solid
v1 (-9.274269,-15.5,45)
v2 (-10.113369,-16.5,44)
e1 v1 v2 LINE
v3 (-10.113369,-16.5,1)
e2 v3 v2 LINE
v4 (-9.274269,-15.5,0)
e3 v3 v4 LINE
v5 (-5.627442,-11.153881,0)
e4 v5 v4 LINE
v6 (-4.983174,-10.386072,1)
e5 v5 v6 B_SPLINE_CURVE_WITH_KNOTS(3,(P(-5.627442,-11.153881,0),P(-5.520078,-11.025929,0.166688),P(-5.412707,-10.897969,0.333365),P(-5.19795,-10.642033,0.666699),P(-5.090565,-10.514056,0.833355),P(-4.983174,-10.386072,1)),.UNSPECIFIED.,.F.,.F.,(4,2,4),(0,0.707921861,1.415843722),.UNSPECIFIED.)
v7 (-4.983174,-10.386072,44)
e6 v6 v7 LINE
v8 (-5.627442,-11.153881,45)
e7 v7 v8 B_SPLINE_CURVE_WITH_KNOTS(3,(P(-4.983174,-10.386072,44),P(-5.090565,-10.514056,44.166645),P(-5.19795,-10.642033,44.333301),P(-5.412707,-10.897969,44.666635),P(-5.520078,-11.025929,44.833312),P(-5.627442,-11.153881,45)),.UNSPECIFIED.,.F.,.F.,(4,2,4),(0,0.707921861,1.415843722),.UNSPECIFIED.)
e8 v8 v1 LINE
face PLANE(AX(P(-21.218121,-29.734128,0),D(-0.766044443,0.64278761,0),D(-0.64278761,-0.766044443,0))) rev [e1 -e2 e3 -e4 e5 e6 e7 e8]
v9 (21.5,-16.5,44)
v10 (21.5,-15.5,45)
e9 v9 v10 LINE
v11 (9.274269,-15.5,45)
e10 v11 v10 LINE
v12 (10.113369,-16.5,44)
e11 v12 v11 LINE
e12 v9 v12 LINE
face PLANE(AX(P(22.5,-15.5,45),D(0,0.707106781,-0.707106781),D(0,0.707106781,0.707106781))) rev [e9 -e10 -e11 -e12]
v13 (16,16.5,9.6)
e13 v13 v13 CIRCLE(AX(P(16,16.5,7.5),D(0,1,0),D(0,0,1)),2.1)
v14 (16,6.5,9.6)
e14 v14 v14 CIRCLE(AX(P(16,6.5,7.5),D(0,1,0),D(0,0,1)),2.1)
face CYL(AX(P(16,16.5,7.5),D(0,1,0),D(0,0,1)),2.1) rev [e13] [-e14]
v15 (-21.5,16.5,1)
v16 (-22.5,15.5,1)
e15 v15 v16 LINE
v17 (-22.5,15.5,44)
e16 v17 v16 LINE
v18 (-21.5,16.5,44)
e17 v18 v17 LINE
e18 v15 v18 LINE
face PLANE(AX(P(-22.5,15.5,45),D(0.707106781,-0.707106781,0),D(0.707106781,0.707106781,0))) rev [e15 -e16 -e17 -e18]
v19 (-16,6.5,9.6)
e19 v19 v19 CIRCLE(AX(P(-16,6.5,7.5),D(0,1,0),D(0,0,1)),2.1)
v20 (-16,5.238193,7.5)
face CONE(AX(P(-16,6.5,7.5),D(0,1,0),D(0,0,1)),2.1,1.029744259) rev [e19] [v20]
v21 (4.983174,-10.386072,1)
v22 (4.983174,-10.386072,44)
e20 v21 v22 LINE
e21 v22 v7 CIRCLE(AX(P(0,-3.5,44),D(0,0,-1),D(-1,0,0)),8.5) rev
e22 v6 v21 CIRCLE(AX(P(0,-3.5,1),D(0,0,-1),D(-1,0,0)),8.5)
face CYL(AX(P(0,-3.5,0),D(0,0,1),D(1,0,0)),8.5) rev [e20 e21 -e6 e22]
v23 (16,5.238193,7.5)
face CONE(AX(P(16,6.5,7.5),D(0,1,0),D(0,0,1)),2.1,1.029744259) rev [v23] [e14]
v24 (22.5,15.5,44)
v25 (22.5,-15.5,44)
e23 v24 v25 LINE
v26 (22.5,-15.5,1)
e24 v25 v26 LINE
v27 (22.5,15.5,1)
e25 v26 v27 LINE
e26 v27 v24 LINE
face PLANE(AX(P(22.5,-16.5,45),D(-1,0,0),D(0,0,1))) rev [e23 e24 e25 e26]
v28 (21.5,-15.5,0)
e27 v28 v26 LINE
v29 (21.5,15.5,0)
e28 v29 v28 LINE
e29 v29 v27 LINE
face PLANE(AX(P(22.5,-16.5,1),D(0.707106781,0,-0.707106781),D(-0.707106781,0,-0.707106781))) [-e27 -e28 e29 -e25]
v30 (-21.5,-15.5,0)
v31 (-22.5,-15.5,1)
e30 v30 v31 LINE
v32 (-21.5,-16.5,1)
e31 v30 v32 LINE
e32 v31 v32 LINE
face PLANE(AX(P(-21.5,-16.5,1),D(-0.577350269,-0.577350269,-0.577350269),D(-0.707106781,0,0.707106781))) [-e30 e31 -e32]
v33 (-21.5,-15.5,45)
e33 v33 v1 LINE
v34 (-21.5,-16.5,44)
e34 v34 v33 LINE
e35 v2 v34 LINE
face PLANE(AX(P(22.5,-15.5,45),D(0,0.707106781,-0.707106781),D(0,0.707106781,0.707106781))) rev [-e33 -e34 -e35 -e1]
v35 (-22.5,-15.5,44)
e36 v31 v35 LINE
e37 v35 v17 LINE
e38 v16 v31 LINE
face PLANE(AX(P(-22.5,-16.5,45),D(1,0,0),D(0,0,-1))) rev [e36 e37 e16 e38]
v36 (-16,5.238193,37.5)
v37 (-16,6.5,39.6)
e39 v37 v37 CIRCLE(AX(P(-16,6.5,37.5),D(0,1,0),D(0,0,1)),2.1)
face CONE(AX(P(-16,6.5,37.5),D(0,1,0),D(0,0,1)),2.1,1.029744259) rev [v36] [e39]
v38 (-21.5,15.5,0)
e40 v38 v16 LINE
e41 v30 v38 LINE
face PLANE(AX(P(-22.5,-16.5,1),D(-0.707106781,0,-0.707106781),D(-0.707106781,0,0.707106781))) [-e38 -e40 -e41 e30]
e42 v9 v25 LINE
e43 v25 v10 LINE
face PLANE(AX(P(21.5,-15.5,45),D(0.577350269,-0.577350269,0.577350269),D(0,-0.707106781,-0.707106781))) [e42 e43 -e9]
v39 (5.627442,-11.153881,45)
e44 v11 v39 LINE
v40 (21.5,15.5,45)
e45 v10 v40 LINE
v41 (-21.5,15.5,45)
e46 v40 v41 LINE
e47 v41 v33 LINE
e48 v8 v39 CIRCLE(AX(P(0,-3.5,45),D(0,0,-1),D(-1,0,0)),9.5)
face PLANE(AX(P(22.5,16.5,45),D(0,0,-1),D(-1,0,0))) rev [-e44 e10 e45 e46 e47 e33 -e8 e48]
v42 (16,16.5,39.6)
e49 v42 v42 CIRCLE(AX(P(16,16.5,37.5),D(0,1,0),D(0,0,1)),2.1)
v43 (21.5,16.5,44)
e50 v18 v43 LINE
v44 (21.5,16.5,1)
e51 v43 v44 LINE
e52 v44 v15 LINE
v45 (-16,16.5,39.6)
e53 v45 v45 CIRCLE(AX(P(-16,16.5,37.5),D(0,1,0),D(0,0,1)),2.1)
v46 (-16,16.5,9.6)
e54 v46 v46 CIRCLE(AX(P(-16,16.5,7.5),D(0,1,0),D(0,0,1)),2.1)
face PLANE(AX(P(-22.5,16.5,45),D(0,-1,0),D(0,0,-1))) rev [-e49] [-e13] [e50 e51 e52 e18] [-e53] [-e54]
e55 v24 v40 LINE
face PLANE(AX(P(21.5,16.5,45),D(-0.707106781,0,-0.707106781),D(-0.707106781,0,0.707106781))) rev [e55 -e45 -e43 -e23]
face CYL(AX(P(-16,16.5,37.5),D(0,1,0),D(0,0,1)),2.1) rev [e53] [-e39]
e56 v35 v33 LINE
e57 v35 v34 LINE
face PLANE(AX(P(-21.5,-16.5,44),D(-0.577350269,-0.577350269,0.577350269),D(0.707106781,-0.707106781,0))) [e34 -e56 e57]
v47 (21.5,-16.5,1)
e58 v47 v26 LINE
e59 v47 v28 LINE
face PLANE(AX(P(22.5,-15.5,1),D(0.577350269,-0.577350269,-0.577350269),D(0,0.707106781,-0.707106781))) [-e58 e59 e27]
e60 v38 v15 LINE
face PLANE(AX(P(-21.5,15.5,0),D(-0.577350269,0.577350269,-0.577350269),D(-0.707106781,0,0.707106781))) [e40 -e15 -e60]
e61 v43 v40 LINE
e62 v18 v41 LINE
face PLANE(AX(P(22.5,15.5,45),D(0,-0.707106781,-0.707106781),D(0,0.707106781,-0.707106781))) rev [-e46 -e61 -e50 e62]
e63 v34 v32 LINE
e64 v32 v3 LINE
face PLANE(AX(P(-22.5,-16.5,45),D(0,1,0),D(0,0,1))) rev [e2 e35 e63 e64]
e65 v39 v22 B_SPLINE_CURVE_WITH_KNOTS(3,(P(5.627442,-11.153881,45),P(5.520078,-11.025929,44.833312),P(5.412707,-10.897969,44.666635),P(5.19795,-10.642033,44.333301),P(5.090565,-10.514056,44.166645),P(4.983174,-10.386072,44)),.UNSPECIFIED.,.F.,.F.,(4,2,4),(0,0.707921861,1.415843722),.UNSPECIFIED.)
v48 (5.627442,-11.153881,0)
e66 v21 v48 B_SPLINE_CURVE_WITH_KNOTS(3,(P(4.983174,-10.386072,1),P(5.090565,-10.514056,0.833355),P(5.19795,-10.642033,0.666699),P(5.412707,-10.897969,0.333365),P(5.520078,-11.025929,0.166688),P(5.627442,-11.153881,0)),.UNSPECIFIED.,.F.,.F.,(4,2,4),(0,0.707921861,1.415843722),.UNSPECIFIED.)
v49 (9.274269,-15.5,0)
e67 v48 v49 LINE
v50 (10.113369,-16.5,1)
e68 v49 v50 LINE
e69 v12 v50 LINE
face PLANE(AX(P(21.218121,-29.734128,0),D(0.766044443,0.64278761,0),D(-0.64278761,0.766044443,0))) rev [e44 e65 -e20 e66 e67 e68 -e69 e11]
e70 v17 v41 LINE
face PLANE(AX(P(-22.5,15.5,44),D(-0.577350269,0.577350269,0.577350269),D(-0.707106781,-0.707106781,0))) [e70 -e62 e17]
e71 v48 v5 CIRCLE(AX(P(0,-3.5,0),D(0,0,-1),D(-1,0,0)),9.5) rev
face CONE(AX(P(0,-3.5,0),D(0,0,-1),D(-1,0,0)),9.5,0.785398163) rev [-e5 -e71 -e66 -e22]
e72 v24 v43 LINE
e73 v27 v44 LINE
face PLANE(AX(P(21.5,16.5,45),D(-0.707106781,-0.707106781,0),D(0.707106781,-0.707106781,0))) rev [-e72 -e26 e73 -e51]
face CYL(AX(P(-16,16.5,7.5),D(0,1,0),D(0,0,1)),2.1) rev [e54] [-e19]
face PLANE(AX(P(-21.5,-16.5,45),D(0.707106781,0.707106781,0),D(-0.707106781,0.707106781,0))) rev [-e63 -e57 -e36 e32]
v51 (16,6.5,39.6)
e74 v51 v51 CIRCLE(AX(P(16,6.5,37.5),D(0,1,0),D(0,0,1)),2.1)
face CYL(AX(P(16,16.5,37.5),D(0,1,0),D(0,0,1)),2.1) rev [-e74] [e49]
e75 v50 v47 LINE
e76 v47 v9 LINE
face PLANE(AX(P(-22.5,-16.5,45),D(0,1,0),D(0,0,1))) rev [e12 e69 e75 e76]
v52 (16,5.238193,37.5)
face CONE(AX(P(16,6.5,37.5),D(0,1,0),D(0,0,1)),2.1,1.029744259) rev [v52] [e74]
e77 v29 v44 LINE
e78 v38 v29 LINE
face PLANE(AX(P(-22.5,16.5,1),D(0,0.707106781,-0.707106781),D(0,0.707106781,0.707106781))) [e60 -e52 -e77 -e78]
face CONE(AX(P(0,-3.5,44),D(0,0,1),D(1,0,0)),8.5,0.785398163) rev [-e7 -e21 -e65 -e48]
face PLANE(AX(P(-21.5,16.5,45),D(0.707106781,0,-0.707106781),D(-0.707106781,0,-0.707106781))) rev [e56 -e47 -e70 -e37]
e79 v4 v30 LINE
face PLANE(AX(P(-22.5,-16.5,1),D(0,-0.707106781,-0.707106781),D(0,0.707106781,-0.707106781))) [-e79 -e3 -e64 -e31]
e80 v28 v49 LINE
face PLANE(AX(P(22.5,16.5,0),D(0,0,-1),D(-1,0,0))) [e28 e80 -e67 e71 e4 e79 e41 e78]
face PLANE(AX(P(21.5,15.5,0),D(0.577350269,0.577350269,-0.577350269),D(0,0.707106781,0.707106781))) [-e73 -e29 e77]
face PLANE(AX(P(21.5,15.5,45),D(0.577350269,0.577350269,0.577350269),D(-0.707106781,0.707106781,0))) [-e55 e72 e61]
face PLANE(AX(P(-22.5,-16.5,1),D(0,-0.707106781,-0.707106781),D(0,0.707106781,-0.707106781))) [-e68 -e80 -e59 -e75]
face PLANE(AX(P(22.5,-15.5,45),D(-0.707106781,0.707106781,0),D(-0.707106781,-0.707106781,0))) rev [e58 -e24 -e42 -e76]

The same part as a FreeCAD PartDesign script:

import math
import FreeCAD as App
import Part
import Sketcher

V = App.Vector
Q = App.Units.Quantity


def edges_at(feature, points):
    """Names of the edges that pass closest to the given points."""
    edges = feature.Shape.Edges
    near = lambda p: min(range(len(edges)), key=lambda i: edges[i].distToShape(Part.Vertex(*p))[0])
    return sorted({f"Edge{near(p) + 1}" for p in points})


def add_polygon(sketch, points):
    """Adds a closed chain of lines whose ends are joined by coincident constraints."""
    first, n = sketch.GeometryCount, len(points)
    for a, b in zip(points, points[1:] + points[:1]):
        sketch.addGeometry(Part.LineSegment(App.Vector(*a, 0), App.Vector(*b, 0)), False)
    for i in range(n):
        sketch.addConstraint(Sketcher.Constraint("Coincident", first + i, 2, first + (i + 1) % n, 1))

doc = App.newDocument("Part")
body = doc.addObject("PartDesign::Body", "Body")

sketch1 = body.newObject("Sketcher::SketchObject", "Sketch")
sketch1.AttachmentSupport = (doc.getObject("XY_Plane"), [""])
sketch1.MapMode = "FlatFace"
add_polygon(sketch1, [(-22.5, 16.5), (-22.5, -16.5), (22.5, -16.5), (22.5, 16.5)])
sketch1.addConstraint(Sketcher.Constraint("Vertical", 0))
sketch1.addConstraint(Sketcher.Constraint("Horizontal", 1))
sketch1.addConstraint(Sketcher.Constraint("Vertical", 2))
sketch1.addConstraint(Sketcher.Constraint("Horizontal", 3))
sketch1.addConstraint(Sketcher.Constraint("Symmetric", 0, 2, 2, 2, -1, 1))
sketch1.addConstraint(Sketcher.Constraint("DistanceX", 1, 1, 1, 2, 45.0))
sketch1.addConstraint(Sketcher.Constraint("DistanceY", 0, 2, 0, 1, 33.0))
pad1 = body.newObject("PartDesign::Pad", "Pad")
pad1.Profile = sketch1
pad1.Length = 45

sketch2 = body.newObject("Sketcher::SketchObject", "Sketch001")
sketch2.AttachmentSupport = (doc.getObject("XY_Plane"), [""])
sketch2.MapMode = "FlatFace"
sketch2.AttachmentOffset = App.Placement(V(0, 0, 45), App.Rotation())
sketch2.addGeometry(Part.ArcOfCircle(Part.Circle(V(0, -3.5, 0), V(0, 0, 1), 8.5), math.radians(-54.10825), math.radians(0)), False)
sketch2.addGeometry(Part.ArcOfCircle(Part.Circle(V(0, -3.5, 0), V(0, 0, 1), 8.5), math.radians(0), math.radians(234.10825)), False)
sketch2.addGeometry(Part.LineSegment(V(-4.983174, -10.386072, 0), V(-10.113369, -16.5, 0)), False)
sketch2.addGeometry(Part.LineSegment(V(-10.113369, -16.5, 0), V(-13.539555, -20.58317, 0)), False)
sketch2.addGeometry(Part.LineSegment(V(-13.539555, -20.58317, 0), V(13.539555, -20.58317, 0)), False)
sketch2.addGeometry(Part.LineSegment(V(13.539555, -20.58317, 0), V(10.113369, -16.5, 0)), False)
sketch2.addGeometry(Part.LineSegment(V(10.113369, -16.5, 0), V(4.983174, -10.386072, 0)), False)
sketch2.addConstraint(Sketcher.Constraint("Tangent", 0, 2, 1, 1))
sketch2.addConstraint(Sketcher.Constraint("Coincident", 1, 2, 2, 1))
sketch2.addConstraint(Sketcher.Constraint("Coincident", 2, 2, 3, 1))
sketch2.addConstraint(Sketcher.Constraint("Coincident", 3, 2, 4, 1))
sketch2.addConstraint(Sketcher.Constraint("Coincident", 4, 2, 5, 1))
sketch2.addConstraint(Sketcher.Constraint("Coincident", 5, 2, 6, 1))
sketch2.addConstraint(Sketcher.Constraint("Coincident", 6, 2, 0, 1))
sketch2.addConstraint(Sketcher.Constraint("Horizontal", 4))
sketch2.addConstraint(Sketcher.Constraint("Equal", 0, 1))
sketch2.addConstraint(Sketcher.Constraint("Symmetric", 2, 2, 5, 2, -2))
sketch2.addConstraint(Sketcher.Constraint("Symmetric", 1, 2, 6, 2, -2))
sketch2.addConstraint(Sketcher.Constraint("Parallel", 2, 3))
sketch2.addConstraint(Sketcher.Constraint("Parallel", 5, 6))
sketch2.addConstraint(Sketcher.Constraint("Horizontal", 1, 3, 0, 2))
sketch2.addConstraint(Sketcher.Constraint("Radius", 0, 8.5))
sketch2.addConstraint(Sketcher.Constraint("Angle", 2, Q("-130 deg")))
sketch2.addConstraint(Sketcher.Constraint("DistanceY", 2, 2, 0, 3, 13.0))
sketch2.addConstraint(Sketcher.Constraint("DistanceY", 0, 3, -1, 1, 3.5))
sketch2.addConstraint(Sketcher.Constraint("Distance", 3, 5.3302))
sketch2.addConstraint(Sketcher.Constraint("DistanceX", 4, 1, 4, 2, 27.07911))
pocket1 = body.newObject("PartDesign::Pocket", "Pocket")
pocket1.Profile = sketch2
pocket1.Type = "ThroughAll"

sketch3 = body.newObject("Sketcher::SketchObject", "Sketch002")
sketch3.AttachmentSupport = (doc.getObject("XZ_Plane"), [""])
sketch3.MapMode = "FlatFace"
sketch3.AttachmentOffset = App.Placement(V(0, 0, -16.5), App.Rotation())
sketch3.addGeometry(Part.Circle(V(-16, 7.5, 0), V(0, 0, 1), 2.1), False)
sketch3.addGeometry(Part.Circle(V(16, 7.5, 0), V(0, 0, 1), 2.1), False)
sketch3.addGeometry(Part.Circle(V(16, 37.5, 0), V(0, 0, 1), 2.1), False)
sketch3.addGeometry(Part.Circle(V(-16, 37.5, 0), V(0, 0, 1), 2.1), False)
sketch3.addConstraint(Sketcher.Constraint("Equal", 0, 1))
sketch3.addConstraint(Sketcher.Constraint("Equal", 1, 2))
sketch3.addConstraint(Sketcher.Constraint("Equal", 2, 3))
sketch3.addConstraint(Sketcher.Constraint("Symmetric", 0, 3, 1, 3, -2))
sketch3.addConstraint(Sketcher.Constraint("Symmetric", 2, 3, 3, 3, -2))
sketch3.addConstraint(Sketcher.Constraint("Vertical", 1, 3, 2, 3))
sketch3.addConstraint(Sketcher.Constraint("Diameter", 0, 4.2))
sketch3.addConstraint(Sketcher.Constraint("DistanceX", 0, 3, -1, 1, 16.0))
sketch3.addConstraint(Sketcher.Constraint("DistanceY", 1, 3, 2, 3, 30.0))
sketch3.addConstraint(Sketcher.Constraint("DistanceY", -1, 1, 0, 3, 7.5))
doc.recompute()
hole = body.newObject("PartDesign::Hole", "Hole")
hole.Profile = sketch3
hole.ThreadType = "None"
hole.Diameter = 4.2
hole.DepthType = "Dimension"
hole.Depth = 10
hole.DrillPoint = "Angled"
hole.DrillPointAngle = 118
hole.Reversed = True
doc.recompute()

chamfer = body.newObject("PartDesign::Chamfer", "Chamfer")
chamfer.Base = (hole, edges_at(hole, [
    (-22.5, 0, 45),
    (-16.307, -16.5, 45),
    (16.307, -16.5, 0),
    (16.307, -16.5, 45),
    (-3.866, 4.07, 45),
    (-3.866, 4.07, 0),
    (22.5, 0, 45),
    (-16.307, -16.5, 0),
    (-22.5, 0, 0),
    (0, 16.5, 0),
    (22.5, 0, 0),
    (0, 16.5, 45),
    (22.5, -16.5, 22.5),
    (-22.5, -16.5, 22.5),
    (-22.5, 16.5, 22.5),
    (22.5, 16.5, 22.5),
]))
chamfer.Size = 1

doc.recompute()
